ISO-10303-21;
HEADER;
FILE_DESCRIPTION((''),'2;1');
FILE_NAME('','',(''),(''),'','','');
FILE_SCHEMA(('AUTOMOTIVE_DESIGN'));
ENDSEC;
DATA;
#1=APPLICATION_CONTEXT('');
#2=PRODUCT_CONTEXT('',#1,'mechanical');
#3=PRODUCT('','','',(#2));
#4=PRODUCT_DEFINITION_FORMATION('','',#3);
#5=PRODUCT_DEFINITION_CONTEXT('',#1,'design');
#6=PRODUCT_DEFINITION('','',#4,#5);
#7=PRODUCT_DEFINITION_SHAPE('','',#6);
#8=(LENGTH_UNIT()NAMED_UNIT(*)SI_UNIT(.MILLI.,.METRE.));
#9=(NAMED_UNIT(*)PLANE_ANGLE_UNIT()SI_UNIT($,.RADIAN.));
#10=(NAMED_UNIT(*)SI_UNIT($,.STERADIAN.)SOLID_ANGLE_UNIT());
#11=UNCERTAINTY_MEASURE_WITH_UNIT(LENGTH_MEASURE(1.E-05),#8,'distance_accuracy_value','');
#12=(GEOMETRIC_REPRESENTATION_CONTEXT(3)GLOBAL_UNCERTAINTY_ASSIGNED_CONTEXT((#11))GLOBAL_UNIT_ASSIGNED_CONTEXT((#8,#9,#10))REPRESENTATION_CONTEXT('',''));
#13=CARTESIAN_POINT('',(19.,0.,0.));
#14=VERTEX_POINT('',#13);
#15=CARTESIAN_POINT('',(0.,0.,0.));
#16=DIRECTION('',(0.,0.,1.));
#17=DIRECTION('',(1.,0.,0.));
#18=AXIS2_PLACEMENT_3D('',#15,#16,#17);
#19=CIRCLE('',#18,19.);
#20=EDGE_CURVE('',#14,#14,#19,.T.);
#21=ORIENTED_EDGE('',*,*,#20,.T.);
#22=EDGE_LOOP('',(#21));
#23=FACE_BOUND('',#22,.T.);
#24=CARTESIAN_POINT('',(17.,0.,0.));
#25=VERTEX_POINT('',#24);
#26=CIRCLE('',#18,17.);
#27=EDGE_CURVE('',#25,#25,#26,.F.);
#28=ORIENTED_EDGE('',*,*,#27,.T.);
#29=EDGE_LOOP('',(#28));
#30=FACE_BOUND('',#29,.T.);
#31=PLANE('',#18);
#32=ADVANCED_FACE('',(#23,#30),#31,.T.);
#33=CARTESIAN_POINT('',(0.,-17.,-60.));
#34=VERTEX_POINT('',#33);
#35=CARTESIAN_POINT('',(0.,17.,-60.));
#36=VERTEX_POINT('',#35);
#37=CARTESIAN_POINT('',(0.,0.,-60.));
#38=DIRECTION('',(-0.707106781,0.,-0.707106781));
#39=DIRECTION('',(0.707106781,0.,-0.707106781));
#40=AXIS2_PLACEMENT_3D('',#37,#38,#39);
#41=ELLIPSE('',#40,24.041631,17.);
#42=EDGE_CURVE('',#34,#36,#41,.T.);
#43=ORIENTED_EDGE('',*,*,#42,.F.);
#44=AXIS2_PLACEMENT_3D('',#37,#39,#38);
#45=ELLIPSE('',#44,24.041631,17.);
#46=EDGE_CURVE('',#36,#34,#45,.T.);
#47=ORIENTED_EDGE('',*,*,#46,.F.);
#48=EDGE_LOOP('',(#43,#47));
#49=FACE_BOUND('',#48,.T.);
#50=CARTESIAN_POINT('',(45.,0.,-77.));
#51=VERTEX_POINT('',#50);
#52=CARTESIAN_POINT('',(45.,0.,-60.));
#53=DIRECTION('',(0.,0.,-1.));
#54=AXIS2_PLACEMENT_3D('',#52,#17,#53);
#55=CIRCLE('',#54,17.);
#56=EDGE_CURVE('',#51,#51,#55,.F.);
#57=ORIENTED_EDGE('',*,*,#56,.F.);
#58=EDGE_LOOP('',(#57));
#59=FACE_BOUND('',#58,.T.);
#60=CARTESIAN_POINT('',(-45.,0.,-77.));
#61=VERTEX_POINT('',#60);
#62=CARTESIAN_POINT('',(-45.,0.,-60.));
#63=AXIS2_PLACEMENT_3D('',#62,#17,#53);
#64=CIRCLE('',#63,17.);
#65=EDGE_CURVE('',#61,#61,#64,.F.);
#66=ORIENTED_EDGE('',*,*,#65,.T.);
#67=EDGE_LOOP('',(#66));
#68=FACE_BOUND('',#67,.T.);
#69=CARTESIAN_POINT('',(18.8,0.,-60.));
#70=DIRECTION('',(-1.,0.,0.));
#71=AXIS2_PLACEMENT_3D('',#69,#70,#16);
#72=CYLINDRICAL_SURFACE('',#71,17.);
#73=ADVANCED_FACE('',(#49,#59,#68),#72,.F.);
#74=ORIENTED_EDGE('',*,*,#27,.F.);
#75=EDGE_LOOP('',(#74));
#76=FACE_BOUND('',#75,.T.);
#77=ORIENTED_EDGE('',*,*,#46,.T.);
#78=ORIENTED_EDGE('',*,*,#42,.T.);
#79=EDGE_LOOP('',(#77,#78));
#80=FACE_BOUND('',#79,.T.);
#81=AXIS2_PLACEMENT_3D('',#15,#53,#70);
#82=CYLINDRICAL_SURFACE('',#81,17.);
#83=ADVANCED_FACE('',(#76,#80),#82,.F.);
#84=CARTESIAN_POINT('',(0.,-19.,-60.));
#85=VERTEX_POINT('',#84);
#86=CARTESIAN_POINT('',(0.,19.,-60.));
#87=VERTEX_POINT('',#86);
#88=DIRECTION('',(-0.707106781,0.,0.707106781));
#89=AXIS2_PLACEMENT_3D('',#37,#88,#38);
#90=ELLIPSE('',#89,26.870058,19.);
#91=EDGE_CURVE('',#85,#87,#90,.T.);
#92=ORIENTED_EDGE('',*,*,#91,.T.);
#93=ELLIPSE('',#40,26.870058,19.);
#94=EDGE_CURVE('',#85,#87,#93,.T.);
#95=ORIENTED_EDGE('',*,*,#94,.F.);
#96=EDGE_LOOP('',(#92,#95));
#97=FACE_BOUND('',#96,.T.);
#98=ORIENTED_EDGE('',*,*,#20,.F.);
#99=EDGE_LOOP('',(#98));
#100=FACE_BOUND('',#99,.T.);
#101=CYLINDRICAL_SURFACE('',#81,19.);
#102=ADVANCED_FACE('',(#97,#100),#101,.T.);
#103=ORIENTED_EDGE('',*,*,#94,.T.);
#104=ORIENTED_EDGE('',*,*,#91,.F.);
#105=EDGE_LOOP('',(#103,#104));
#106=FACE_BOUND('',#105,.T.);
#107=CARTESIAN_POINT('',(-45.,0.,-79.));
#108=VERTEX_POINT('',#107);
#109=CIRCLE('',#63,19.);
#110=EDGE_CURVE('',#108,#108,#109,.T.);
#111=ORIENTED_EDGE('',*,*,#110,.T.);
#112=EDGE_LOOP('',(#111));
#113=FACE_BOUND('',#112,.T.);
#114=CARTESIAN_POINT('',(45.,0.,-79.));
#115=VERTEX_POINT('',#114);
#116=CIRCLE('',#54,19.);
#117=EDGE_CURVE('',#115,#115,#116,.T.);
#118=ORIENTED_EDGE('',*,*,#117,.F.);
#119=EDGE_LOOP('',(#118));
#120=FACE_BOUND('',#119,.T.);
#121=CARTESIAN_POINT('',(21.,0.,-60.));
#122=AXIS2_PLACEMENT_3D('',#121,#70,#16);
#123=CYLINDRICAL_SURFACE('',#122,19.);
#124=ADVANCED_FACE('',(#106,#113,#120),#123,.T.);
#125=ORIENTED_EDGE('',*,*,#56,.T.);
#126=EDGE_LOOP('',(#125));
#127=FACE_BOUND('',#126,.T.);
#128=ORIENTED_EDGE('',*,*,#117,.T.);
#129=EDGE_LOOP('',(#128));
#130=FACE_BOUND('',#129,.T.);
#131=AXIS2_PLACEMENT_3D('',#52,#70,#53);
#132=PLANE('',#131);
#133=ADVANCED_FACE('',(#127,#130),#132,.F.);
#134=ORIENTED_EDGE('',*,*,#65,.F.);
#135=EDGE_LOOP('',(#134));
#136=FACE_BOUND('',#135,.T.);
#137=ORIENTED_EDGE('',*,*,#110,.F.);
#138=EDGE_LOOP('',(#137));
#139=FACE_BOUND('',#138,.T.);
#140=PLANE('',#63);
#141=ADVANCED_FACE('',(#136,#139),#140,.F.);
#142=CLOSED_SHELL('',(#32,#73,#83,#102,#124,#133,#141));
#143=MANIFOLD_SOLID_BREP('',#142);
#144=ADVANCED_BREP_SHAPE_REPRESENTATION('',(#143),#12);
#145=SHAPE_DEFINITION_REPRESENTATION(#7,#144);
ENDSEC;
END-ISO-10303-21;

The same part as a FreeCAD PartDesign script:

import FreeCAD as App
import Part
import Sketcher
Q = App.Units.Quantity

doc = App.newDocument("Part")
body = doc.addObject("PartDesign::Body", "Body")

# Sketch on XY plane
sketch1 = doc.addObject("Sketcher::SketchObject", "Sketch")
body.addObject(sketch1)
sketch1.AttachmentSupport = (doc.XY_Plane, [""])
sketch1.MapMode = "FlatFace"
sketch1.addGeometry(Part.Circle(App.Vector(0, 0, 0), App.Vector(0, 0, 1), 19), False)
sketch1.addGeometry(Part.Circle(App.Vector(0, 0, 0), App.Vector(0, 0, 1), 17), False)
sketch1.addConstraint(Sketcher.Constraint("Coincident", 0, 3, -1, 1))
sketch1.addConstraint(Sketcher.Constraint("Coincident", 1, 3, -1, 1))
sketch1.addConstraint(Sketcher.Constraint("Diameter", 0, Q("38 mm")))
sketch1.addConstraint(Sketcher.Constraint("Diameter", 1, Q("34 mm")))

# Sketch on XZ plane
sketch2 = doc.addObject("Sketcher::SketchObject", "Sketch001")
body.addObject(sketch2)
sketch2.AttachmentSupport = (doc.XZ_Plane, [""])
sketch2.MapMode = "FlatFace"
sketch2.addGeometry(Part.LineSegment(App.Vector(0, 0, 0), App.Vector(0, -60, 0)), False)
sketch2.addGeometry(Part.LineSegment(App.Vector(0, -60, 0), App.Vector(-45, -60, 0)), False)
sketch2.addConstraint(Sketcher.Constraint("Coincident", 0, 2, 1, 1))
sketch2.addConstraint(Sketcher.Constraint("Vertical", 0))
sketch2.addConstraint(Sketcher.Constraint("Horizontal", 1))
sketch2.addConstraint(Sketcher.Constraint("Coincident", 0, 1, -1, 1))
sketch2.addConstraint(Sketcher.Constraint("DistanceX", 1, 2, 1, 1, Q("45 mm")))
sketch2.addConstraint(Sketcher.Constraint("DistanceY", 0, 2, 0, 1, Q("60 mm")))
doc.recompute()

additivepipe = doc.addObject("PartDesign::AdditivePipe", "AdditivePipe")
body.addObject(additivepipe)
additivepipe.Profile = sketch1
additivepipe.Spine = (sketch2, ["Edge1", "Edge2"])
additivepipe.Transition = "Right corner"
body2 = doc.addObject("PartDesign::Body", "Body001")
doc.recompute()

body2.BaseFeature = body
doc.recompute()

mirroring = doc.addObject("Part::Mirroring", "Mirroring")
mirroring.Source = body
mirroring.Base = App.Vector(0, 0, 0)
mirroring.Normal = App.Vector(1, 0, 0)
body3 = doc.addObject("PartDesign::Body", "Body002")
body3.BaseFeature = mirroring
boolean = doc.addObject("PartDesign::Boolean", "Boolean")
body2.addObject(boolean)
boolean.Type = "Fuse"
boolean.addObjects([body3])
doc.recompute()

# Sketch on YZ plane
sketch3 = doc.addObject("Sketcher::SketchObject", "Sketch002")
body2.addObject(sketch3)
sketch3.AttachmentSupport = (doc.getObject("YZ_Plane001"), [""])
sketch3.MapMode = "FlatFace"
sketch3.addGeometry(Part.Circle(App.Vector(0, -60, 0), App.Vector(0, 0, 1), 17), False)
sketch3.addConstraint(Sketcher.Constraint("PointOnObject", 0, 3, -2))
sketch3.addConstraint(Sketcher.Constraint("Diameter", 0, Q("34 mm")))
sketch3.addConstraint(Sketcher.Constraint("DistanceY", 0, 3, -1, 1, Q("60 mm")))
pocket1 = doc.addObject("PartDesign::Pocket", "Pocket")
body2.addObject(pocket1)
pocket1.Profile = sketch3
pocket1.Type = "ThroughAll"
pocket1.Midplane = True
mirroring.Visibility = False

doc.recompute()
